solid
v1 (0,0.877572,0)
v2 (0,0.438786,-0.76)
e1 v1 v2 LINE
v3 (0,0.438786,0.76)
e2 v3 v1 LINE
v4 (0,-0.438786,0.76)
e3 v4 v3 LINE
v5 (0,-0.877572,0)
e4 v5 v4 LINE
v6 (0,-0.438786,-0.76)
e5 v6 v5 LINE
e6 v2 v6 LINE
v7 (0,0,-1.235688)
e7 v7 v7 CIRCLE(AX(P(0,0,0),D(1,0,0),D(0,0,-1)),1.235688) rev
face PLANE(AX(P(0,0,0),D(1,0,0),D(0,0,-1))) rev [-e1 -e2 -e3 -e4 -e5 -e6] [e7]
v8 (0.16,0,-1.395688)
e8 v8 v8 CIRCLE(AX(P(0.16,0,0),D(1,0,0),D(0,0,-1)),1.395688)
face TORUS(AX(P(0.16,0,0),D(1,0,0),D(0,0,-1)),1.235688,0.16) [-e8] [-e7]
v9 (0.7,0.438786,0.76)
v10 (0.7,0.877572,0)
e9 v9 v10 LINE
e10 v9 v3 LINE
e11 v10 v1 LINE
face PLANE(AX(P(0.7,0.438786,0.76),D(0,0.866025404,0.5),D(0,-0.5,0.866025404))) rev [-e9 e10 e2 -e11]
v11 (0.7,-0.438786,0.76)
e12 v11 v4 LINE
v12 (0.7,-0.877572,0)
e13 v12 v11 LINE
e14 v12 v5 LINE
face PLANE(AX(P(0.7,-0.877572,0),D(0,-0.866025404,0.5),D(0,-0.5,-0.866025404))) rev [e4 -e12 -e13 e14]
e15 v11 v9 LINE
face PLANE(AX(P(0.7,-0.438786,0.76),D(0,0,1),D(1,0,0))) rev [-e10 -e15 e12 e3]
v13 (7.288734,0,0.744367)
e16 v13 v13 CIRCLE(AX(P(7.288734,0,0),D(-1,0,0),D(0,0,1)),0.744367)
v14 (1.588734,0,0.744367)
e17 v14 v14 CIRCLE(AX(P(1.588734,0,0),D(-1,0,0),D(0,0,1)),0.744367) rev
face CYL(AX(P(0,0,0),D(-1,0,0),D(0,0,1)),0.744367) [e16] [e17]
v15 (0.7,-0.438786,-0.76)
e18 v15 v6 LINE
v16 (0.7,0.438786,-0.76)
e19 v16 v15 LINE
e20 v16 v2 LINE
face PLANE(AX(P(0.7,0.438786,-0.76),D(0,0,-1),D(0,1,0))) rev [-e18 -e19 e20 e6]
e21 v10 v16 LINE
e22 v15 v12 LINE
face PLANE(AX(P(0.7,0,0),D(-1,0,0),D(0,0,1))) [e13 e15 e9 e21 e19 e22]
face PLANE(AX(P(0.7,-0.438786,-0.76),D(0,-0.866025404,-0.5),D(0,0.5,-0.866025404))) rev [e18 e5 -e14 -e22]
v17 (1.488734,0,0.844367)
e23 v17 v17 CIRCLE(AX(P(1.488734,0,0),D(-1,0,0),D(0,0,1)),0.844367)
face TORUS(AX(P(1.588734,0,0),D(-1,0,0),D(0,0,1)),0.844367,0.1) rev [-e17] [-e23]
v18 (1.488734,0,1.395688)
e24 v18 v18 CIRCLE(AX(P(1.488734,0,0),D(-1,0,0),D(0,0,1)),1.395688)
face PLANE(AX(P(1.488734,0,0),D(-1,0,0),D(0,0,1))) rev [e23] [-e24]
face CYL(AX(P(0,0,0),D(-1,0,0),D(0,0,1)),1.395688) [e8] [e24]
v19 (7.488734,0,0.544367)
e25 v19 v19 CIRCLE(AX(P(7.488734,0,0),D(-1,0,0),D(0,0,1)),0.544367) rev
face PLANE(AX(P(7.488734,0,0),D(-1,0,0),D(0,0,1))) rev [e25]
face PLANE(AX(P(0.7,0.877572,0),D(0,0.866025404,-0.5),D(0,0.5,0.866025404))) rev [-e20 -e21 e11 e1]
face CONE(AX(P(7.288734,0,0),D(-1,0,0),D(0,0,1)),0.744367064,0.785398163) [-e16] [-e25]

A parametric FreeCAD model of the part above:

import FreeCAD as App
import Part
import Sketcher
Q = App.Units.Quantity


def edges_at(feature, points):
    """Names of the edges that pass closest to the given points."""
    edges = feature.Shape.Edges
    near = lambda p: min(range(len(edges)), key=lambda i: edges[i].distToShape(Part.Vertex(*p))[0])
    return sorted({f"Edge{near(p) + 1}" for p in points})

doc = App.newDocument("Part")
params = doc.addObject("Spreadsheet::Sheet", "Params")
for row, (alias, value) in enumerate([
    ("sketch1_width", "6 mm"),
    ("revolution_angle", "360 deg"),
    ("fillet_radius", "0.1 mm"),
    ("fillet2_radius", "0.16 mm"),
    ("chamfer_size", "0.2 mm"),
    ("pocket1_length", "0.7 mm"),
], start=1):
    params.set(f"A{row}", alias)
    params.set(f"B{row}", "=" + value)
    params.setAlias(f"B{row}", alias)

body = doc.addObject("PartDesign::Body", "Body")

# Sketch on XY plane
sketch1 = body.newObject("Sketcher::SketchObject", "Sketch")
sketch1.AttachmentSupport = (doc.getObject("XY_Plane"), [""])
sketch1.MapMode = "FlatFace"
sketch1.addGeometry(Part.LineSegment(App.Vector(0, 1.4, 0), App.Vector(0, 0, 0)), False)
sketch1.addGeometry(Part.LineSegment(App.Vector(0, 0, 0), App.Vector(7.5, 0, 0)), False)
sketch1.addGeometry(Part.LineSegment(App.Vector(7.5, 0, 0), App.Vector(7.5, 0.7, 0)), False)
sketch1.addGeometry(Part.LineSegment(App.Vector(7.5, 0.7, 0), App.Vector(1.5, 0.7, 0)), False)
sketch1.addGeometry(Part.LineSegment(App.Vector(1.5, 0.7, 0), App.Vector(1.5, 1.4, 0)), False)
sketch1.addGeometry(Part.LineSegment(App.Vector(1.5, 1.4, 0), App.Vector(0, 1.4, 0)), False)
sketch1.addConstraint(Sketcher.Constraint("Coincident", 0, 2, 1, 1))
sketch1.addConstraint(Sketcher.Constraint("Coincident", 1, 2, 2, 1))
sketch1.addConstraint(Sketcher.Constraint("Coincident", 2, 2, 3, 1))
sketch1.addConstraint(Sketcher.Constraint("Coincident", 3, 2, 4, 1))
sketch1.addConstraint(Sketcher.Constraint("Coincident", 4, 2, 5, 1))
sketch1.addConstraint(Sketcher.Constraint("Coincident", 5, 2, 0, 1))
sketch1.addConstraint(Sketcher.Constraint("Vertical", 0))
sketch1.addConstraint(Sketcher.Constraint("Horizontal", 1))
sketch1.addConstraint(Sketcher.Constraint("Vertical", 2))
sketch1.addConstraint(Sketcher.Constraint("Horizontal", 3))
sketch1.addConstraint(Sketcher.Constraint("Vertical", 4))
sketch1.addConstraint(Sketcher.Constraint("Horizontal", 5))
sketch1.addConstraint(Sketcher.Constraint("Coincident", 0, 2, -1, 1))
sketch1.addConstraint(Sketcher.Constraint("DistanceX", 3, 2, 3, 1, 6.0))
sketch1.addConstraint(Sketcher.Constraint("DistanceY", 0, 2, 0, 1, 1.395688))
sketch1.addConstraint(Sketcher.Constraint("DistanceY", 4, 1, 4, 2, 0.651321))
sketch1.addConstraint(Sketcher.Constraint("DistanceX", 1, 1, 1, 2, 7.488734))
sketch1.setExpression("Constraints[13]", "Params.sketch1_width")
revolution = body.newObject("PartDesign::Revolution", "Revolution")
revolution.Profile = sketch1
revolution.ReferenceAxis = (sketch1, ["H_Axis"])
revolution.setExpression("Angle", "Params.revolution_angle")
doc.recompute()

fillet = body.newObject("PartDesign::Fillet", "Fillet")
fillet.Base = (revolution, edges_at(revolution, [(1.489, 0, -0.744)]))
fillet.setExpression("Radius", "Params.fillet_radius")
doc.recompute()

fillet2 = body.newObject("PartDesign::Fillet", "Fillet001")
fillet2.Base = (fillet, edges_at(fillet, [(0, 0, -1.396)]))
fillet2.setExpression("Radius", "Params.fillet2_radius")
doc.recompute()

chamfer = body.newObject("PartDesign::Chamfer", "Chamfer")
chamfer.Base = (fillet2, edges_at(fillet2, [(7.489, 0, -0.744)]))
chamfer.setExpression("Size", "Params.chamfer_size")

# Sketch on YZ plane
sketch2 = body.newObject("Sketcher::SketchObject", "Sketch001")
sketch2.AttachmentSupport = (doc.getObject("YZ_Plane"), [""])
sketch2.MapMode = "FlatFace"
sketch2.addGeometry(Part.LineSegment(App.Vector(0.9, 0, 0), App.Vector(0.4, -0.8, 0)), False)
sketch2.addGeometry(Part.LineSegment(App.Vector(0.4, -0.8, 0), App.Vector(-0.4, -0.8, 0)), False)
sketch2.addGeometry(Part.LineSegment(App.Vector(-0.4, -0.8, 0), App.Vector(-0.9, 0, 0)), False)
sketch2.addGeometry(Part.LineSegment(App.Vector(-0.9, 0, 0), App.Vector(-0.4, 0.8, 0)), False)
sketch2.addGeometry(Part.LineSegment(App.Vector(-0.4, 0.8, 0), App.Vector(0.4, 0.8, 0)), False)
sketch2.addGeometry(Part.LineSegment(App.Vector(0.4, 0.8, 0), App.Vector(0.9, 0, 0)), False)
sketch2.addConstraint(Sketcher.Constraint("Coincident", 0, 2, 1, 1))
sketch2.addConstraint(Sketcher.Constraint("Coincident", 1, 2, 2, 1))
sketch2.addConstraint(Sketcher.Constraint("Coincident", 2, 2, 3, 1))
sketch2.addConstraint(Sketcher.Constraint("Coincident", 3, 2, 4, 1))
sketch2.addConstraint(Sketcher.Constraint("Coincident", 4, 2, 5, 1))
sketch2.addConstraint(Sketcher.Constraint("Coincident", 5, 2, 0, 1))
sketch2.addConstraint(Sketcher.Constraint("Horizontal", 1))
sketch2.addConstraint(Sketcher.Constraint("Horizontal", 4))
sketch2.addConstraint(Sketcher.Constraint("Symmetric", 0, 2, 3, 2, -1, 1))
sketch2.addConstraint(Sketcher.Constraint("Symmetric", 2, 2, 5, 2, -1, 1))
sketch2.addConstraint(Sketcher.Constraint("PointOnObject", 2, 2, -1))
sketch2.addConstraint(Sketcher.Constraint("Parallel", 2, 5))
sketch2.addConstraint(Sketcher.Constraint("Vertical", 1, 2, 3, 2))
sketch2.addConstraint(Sketcher.Constraint("Angle", 0, Q("-120 deg")))
sketch2.addConstraint(Sketcher.Constraint("DistanceY", 0, 2, -1, 1, 0.76))
sketch2.addConstraint(Sketcher.Constraint("DistanceX", 1, 2, 1, 1, 0.877572))
pocket1 = body.newObject("PartDesign::Pocket", "Pocket")
pocket1.Profile = sketch2
pocket1.setExpression("Length", "Params.pocket1_length")
pocket1.Reversed = True

doc.recompute()
